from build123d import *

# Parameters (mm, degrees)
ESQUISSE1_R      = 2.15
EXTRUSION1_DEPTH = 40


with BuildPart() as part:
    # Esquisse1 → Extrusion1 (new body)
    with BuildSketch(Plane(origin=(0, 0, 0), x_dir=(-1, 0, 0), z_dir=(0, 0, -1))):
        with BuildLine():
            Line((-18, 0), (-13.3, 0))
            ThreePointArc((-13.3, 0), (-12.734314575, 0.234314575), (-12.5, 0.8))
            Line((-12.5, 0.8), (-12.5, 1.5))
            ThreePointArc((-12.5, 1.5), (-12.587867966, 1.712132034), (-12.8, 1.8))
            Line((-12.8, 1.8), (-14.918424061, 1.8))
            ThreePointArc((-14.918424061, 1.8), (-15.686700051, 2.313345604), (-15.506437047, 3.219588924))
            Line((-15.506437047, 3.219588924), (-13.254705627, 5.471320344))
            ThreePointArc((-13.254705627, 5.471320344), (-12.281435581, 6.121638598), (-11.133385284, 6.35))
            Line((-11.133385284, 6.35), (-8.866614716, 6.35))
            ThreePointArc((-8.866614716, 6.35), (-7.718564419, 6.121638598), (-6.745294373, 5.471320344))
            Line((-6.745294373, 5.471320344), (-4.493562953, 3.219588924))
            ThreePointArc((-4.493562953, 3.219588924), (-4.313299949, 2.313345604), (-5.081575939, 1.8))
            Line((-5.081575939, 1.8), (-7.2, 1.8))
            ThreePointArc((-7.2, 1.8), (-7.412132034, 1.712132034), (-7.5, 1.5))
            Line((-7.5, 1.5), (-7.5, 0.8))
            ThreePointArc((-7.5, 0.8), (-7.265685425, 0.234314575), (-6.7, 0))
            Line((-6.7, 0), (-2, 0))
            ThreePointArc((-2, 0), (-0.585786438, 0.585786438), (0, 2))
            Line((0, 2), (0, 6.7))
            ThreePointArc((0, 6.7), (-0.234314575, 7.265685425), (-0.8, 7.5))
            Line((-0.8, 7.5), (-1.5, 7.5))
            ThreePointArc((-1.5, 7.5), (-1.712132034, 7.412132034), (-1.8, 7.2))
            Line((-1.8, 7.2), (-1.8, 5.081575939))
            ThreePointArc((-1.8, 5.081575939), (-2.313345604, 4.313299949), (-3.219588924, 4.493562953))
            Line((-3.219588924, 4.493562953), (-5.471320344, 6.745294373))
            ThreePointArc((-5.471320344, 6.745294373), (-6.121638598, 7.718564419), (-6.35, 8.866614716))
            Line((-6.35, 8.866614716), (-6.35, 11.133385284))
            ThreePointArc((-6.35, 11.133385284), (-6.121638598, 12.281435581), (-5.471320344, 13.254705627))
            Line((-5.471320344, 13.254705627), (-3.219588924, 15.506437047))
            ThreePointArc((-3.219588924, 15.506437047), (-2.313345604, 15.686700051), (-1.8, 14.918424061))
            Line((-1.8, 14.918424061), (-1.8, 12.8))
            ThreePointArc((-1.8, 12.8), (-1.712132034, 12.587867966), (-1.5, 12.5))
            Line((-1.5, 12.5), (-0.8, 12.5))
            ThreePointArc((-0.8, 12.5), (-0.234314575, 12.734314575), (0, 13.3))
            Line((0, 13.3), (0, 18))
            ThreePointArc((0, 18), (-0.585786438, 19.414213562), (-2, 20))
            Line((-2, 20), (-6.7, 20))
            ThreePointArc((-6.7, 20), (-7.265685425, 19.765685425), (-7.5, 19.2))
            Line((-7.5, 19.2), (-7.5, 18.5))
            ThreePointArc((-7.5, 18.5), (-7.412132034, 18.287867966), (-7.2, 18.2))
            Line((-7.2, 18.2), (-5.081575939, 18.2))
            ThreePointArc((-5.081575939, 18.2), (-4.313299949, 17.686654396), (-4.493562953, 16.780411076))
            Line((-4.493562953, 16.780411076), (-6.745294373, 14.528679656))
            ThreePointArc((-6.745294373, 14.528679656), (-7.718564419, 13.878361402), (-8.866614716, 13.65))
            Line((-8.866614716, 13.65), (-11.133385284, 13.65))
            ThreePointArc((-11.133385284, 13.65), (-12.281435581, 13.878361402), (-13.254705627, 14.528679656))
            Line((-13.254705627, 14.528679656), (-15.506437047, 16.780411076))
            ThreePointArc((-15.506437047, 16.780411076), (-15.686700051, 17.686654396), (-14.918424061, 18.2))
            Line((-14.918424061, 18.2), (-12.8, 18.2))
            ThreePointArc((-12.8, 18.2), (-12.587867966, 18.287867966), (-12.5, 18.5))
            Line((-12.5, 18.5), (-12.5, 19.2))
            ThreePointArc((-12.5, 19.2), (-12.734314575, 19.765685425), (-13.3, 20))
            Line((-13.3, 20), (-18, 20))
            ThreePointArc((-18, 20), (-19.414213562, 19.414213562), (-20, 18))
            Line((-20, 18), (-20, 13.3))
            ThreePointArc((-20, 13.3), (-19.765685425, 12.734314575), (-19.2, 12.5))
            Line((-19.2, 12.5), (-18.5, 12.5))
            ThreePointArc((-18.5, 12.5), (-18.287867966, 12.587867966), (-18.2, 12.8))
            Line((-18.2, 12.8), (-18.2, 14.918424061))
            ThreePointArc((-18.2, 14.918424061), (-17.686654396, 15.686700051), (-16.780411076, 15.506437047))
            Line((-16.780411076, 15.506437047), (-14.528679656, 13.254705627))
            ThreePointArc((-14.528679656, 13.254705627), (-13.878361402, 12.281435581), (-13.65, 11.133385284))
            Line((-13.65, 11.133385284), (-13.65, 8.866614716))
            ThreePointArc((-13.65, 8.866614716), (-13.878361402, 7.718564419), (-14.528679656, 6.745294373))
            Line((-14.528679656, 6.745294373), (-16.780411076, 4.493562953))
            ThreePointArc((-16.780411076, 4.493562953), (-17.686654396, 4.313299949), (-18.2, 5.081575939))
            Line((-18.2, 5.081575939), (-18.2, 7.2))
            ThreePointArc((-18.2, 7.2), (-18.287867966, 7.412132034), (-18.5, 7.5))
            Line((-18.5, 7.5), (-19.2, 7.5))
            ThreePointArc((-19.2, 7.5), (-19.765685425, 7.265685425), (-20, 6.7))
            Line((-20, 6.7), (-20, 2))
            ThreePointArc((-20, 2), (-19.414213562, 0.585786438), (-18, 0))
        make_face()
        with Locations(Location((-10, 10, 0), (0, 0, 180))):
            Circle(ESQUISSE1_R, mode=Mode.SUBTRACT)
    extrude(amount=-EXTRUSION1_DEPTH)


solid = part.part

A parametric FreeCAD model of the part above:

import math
import FreeCAD as App
import Part
import Sketcher
from FreeCAD import Vector
Q = App.Units.Quantity

doc = App.newDocument("Part")
body = doc.addObject("PartDesign::Body", "Body")

# Sketch on XY plane
sketch1 = body.newObject("Sketcher::SketchObject", "Sketch")
sketch1.AttachmentSupport = (doc.getObject("XY_Plane"), [""])
sketch1.MapMode = "FlatFace"
sketch1.addGeometry(Part.LineSegment(Vector(18, 0, 0), Vector(13.3, 0, 0)), False)
sketch1.addGeometry(Part.ArcOfCircle(Part.Circle(Vector(13.3, 0.8, 0), Vector(0, 0, 1), 0.8), math.radians(180), math.radians(270)), False)
sketch1.addGeometry(Part.LineSegment(Vector(12.5, 0.8, 0), Vector(12.5, 1.5, 0)), False)
sketch1.addGeometry(Part.ArcOfCircle(Part.Circle(Vector(12.8, 1.5, 0), Vector(0, 0, 1), 0.3), math.radians(90), math.radians(180)), False)
sketch1.addGeometry(Part.LineSegment(Vector(12.8, 1.8, 0), Vector(14.918424, 1.8, 0)), False)
sketch1.addGeometry(Part.ArcOfCircle(Part.Circle(Vector(14.918424, 2.631576, 0), Vector(0, 0, 1), 0.831576), math.radians(-90), math.radians(45)), False)
sketch1.addGeometry(Part.LineSegment(Vector(15.506437, 3.219589, 0), Vector(13.254706, 5.47132, 0)), False)
sketch1.addGeometry(Part.ArcOfCircle(Part.Circle(Vector(11.133385, 3.35, 0), Vector(0, 0, 1), 3), math.radians(45), math.radians(90)), False)
sketch1.addGeometry(Part.LineSegment(Vector(11.133385, 6.35, 0), Vector(8.866615, 6.35, 0)), False)
sketch1.addGeometry(Part.ArcOfCircle(Part.Circle(Vector(8.866615, 3.35, 0), Vector(0, 0, 1), 3), math.radians(90), math.radians(135)), False)
sketch1.addGeometry(Part.LineSegment(Vector(6.745294, 5.47132, 0), Vector(4.493563, 3.219589, 0)), False)
sketch1.addGeometry(Part.ArcOfCircle(Part.Circle(Vector(5.081576, 2.631576, 0), Vector(0, 0, 1), 0.831576), math.radians(135), math.radians(270)), False)
sketch1.addGeometry(Part.LineSegment(Vector(5.081576, 1.8, 0), Vector(7.2, 1.8, 0)), False)
sketch1.addGeometry(Part.ArcOfCircle(Part.Circle(Vector(7.2, 1.5, 0), Vector(0, 0, 1), 0.3), math.radians(0), math.radians(90)), False)
sketch1.addGeometry(Part.LineSegment(Vector(7.5, 1.5, 0), Vector(7.5, 0.8, 0)), False)
sketch1.addGeometry(Part.ArcOfCircle(Part.Circle(Vector(6.7, 0.8, 0), Vector(0, 0, 1), 0.8), math.radians(-90), math.radians(0)), False)
sketch1.addGeometry(Part.LineSegment(Vector(6.7, 0, 0), Vector(2, 0, 0)), False)
sketch1.addGeometry(Part.ArcOfCircle(Part.Circle(Vector(2, 2, 0), Vector(0, 0, 1), 2), math.radians(-180), math.radians(-90)), False)
sketch1.addGeometry(Part.LineSegment(Vector(0, 2, 0), Vector(0, 6.7, 0)), False)
sketch1.addGeometry(Part.ArcOfCircle(Part.Circle(Vector(0.8, 6.7, 0), Vector(0, 0, 1), 0.8), math.radians(90), math.radians(180)), False)
sketch1.addGeometry(Part.LineSegment(Vector(0.8, 7.5, 0), Vector(1.5, 7.5, 0)), False)
sketch1.addGeometry(Part.ArcOfCircle(Part.Circle(Vector(1.5, 7.2, 0), Vector(0, 0, 1), 0.3), math.radians(0), math.radians(90)), False)
sketch1.addGeometry(Part.LineSegment(Vector(1.8, 7.2, 0), Vector(1.8, 5.081576, 0)), False)
sketch1.addGeometry(Part.ArcOfCircle(Part.Circle(Vector(2.631576, 5.081576, 0), Vector(0, 0, 1), 0.831576), math.radians(180), math.radians(315)), False)
sketch1.addGeometry(Part.LineSegment(Vector(3.219589, 4.493563, 0), Vector(5.47132, 6.745294, 0)), False)
sketch1.addGeometry(Part.ArcOfCircle(Part.Circle(Vector(3.35, 8.866615, 0), Vector(0, 0, 1), 3), math.radians(-45), math.radians(0)), False)
sketch1.addGeometry(Part.LineSegment(Vector(6.35, 8.866615, 0), Vector(6.35, 11.133385, 0)), False)
sketch1.addGeometry(Part.ArcOfCircle(Part.Circle(Vector(3.35, 11.133385, 0), Vector(0, 0, 1), 3), math.radians(0), math.radians(45)), False)
sketch1.addGeometry(Part.LineSegment(Vector(5.47132, 13.254706, 0), Vector(3.219589, 15.506437, 0)), False)
sketch1.addGeometry(Part.ArcOfCircle(Part.Circle(Vector(2.631576, 14.918424, 0), Vector(0, 0, 1), 0.831576), math.radians(45), math.radians(180)), False)
sketch1.addGeometry(Part.LineSegment(Vector(1.8, 14.918424, 0), Vector(1.8, 12.8, 0)), False)
sketch1.addGeometry(Part.ArcOfCircle(Part.Circle(Vector(1.5, 12.8, 0), Vector(0, 0, 1), 0.3), math.radians(-90), math.radians(0)), False)
sketch1.addGeometry(Part.LineSegment(Vector(1.5, 12.5, 0), Vector(0.8, 12.5, 0)), False)
sketch1.addGeometry(Part.ArcOfCircle(Part.Circle(Vector(0.8, 13.3, 0), Vector(0, 0, 1), 0.8), math.radians(180), math.radians(270)), False)
sketch1.addGeometry(Part.LineSegment(Vector(0, 13.3, 0), Vector(0, 18, 0)), False)
sketch1.addGeometry(Part.ArcOfCircle(Part.Circle(Vector(2, 18, 0), Vector(0, 0, 1), 2), math.radians(90), math.radians(180)), False)
sketch1.addGeometry(Part.LineSegment(Vector(2, 20, 0), Vector(6.7, 20, 0)), False)
sketch1.addGeometry(Part.ArcOfCircle(Part.Circle(Vector(6.7, 19.2, 0), Vector(0, 0, 1), 0.8), math.radians(0), math.radians(90)), False)
sketch1.addGeometry(Part.LineSegment(Vector(7.5, 19.2, 0), Vector(7.5, 18.5, 0)), False)
sketch1.addGeometry(Part.ArcOfCircle(Part.Circle(Vector(7.2, 18.5, 0), Vector(0, 0, 1), 0.3), math.radians(-90), math.radians(0)), False)
sketch1.addGeometry(Part.LineSegment(Vector(7.2, 18.2, 0), Vector(5.081576, 18.2, 0)), False)
sketch1.addGeometry(Part.ArcOfCircle(Part.Circle(Vector(5.081576, 17.368424, 0), Vector(0, 0, 1), 0.831576), math.radians(90), math.radians(225)), False)
sketch1.addGeometry(Part.LineSegment(Vector(4.493563, 16.780411, 0), Vector(6.745294, 14.52868, 0)), False)
sketch1.addGeometry(Part.ArcOfCircle(Part.Circle(Vector(8.866615, 16.65, 0), Vector(0, 0, 1), 3), math.radians(-135), math.radians(-90)), False)
sketch1.addGeometry(Part.LineSegment(Vector(8.866615, 13.65, 0), Vector(11.133385, 13.65, 0)), False)
sketch1.addGeometry(Part.ArcOfCircle(Part.Circle(Vector(11.133385, 16.65, 0), Vector(0, 0, 1), 3), math.radians(-90), math.radians(-45)), False)
sketch1.addGeometry(Part.LineSegment(Vector(13.254706, 14.52868, 0), Vector(15.506437, 16.780411, 0)), False)
sketch1.addGeometry(Part.ArcOfCircle(Part.Circle(Vector(14.918424, 17.368424, 0), Vector(0, 0, 1), 0.831576), math.radians(-45), math.radians(90)), False)
sketch1.addGeometry(Part.LineSegment(Vector(14.918424, 18.2, 0), Vector(12.8, 18.2, 0)), False)
sketch1.addGeometry(Part.ArcOfCircle(Part.Circle(Vector(12.8, 18.5, 0), Vector(0, 0, 1), 0.3), math.radians(-180), math.radians(-90)), False)
sketch1.addGeometry(Part.LineSegment(Vector(12.5, 18.5, 0), Vector(12.5, 19.2, 0)), False)
sketch1.addGeometry(Part.ArcOfCircle(Part.Circle(Vector(13.3, 19.2, 0), Vector(0, 0, 1), 0.8), math.radians(90), math.radians(180)), False)
sketch1.addGeometry(Part.LineSegment(Vector(13.3, 20, 0), Vector(18, 20, 0)), False)
sketch1.addGeometry(Part.ArcOfCircle(Part.Circle(Vector(18, 18, 0), Vector(0, 0, 1), 2), math.radians(0), math.radians(90)), False)
sketch1.addGeometry(Part.LineSegment(Vector(20, 18, 0), Vector(20, 13.3, 0)), False)
sketch1.addGeometry(Part.ArcOfCircle(Part.Circle(Vector(19.2, 13.3, 0), Vector(0, 0, 1), 0.8), math.radians(-90), math.radians(0)), False)
sketch1.addGeometry(Part.LineSegment(Vector(19.2, 12.5, 0), Vector(18.5, 12.5, 0)), False)
sketch1.addGeometry(Part.ArcOfCircle(Part.Circle(Vector(18.5, 12.8, 0), Vector(0, 0, 1), 0.3), math.radians(-180), math.radians(-90)), False)
sketch1.addGeometry(Part.LineSegment(Vector(18.2, 12.8, 0), Vector(18.2, 14.918424, 0)), False)
sketch1.addGeometry(Part.ArcOfCircle(Part.Circle(Vector(17.368424, 14.918424, 0), Vector(0, 0, 1), 0.831576), math.radians(0), math.radians(135)), False)
sketch1.addGeometry(Part.LineSegment(Vector(16.780411, 15.506437, 0), Vector(14.52868, 13.254706, 0)), False)
sketch1.addGeometry(Part.ArcOfCircle(Part.Circle(Vector(16.65, 11.133385, 0), Vector(0, 0, 1), 3), math.radians(135), math.radians(180)), False)
sketch1.addGeometry(Part.LineSegment(Vector(13.65, 11.133385, 0), Vector(13.65, 8.866615, 0)), False)
sketch1.addGeometry(Part.ArcOfCircle(Part.Circle(Vector(16.65, 8.866615, 0), Vector(0, 0, 1), 3), math.radians(180), math.radians(225)), False)
sketch1.addGeometry(Part.LineSegment(Vector(14.52868, 6.745294, 0), Vector(16.780411, 4.493563, 0)), False)
sketch1.addGeometry(Part.ArcOfCircle(Part.Circle(Vector(17.368424, 5.081576, 0), Vector(0, 0, 1), 0.831576), math.radians(-135), math.radians(0)), False)
sketch1.addGeometry(Part.LineSegment(Vector(18.2, 5.081576, 0), Vector(18.2, 7.2, 0)), False)
sketch1.addGeometry(Part.ArcOfCircle(Part.Circle(Vector(18.5, 7.2, 0), Vector(0, 0, 1), 0.3), math.radians(90), math.radians(180)), False)
sketch1.addGeometry(Part.LineSegment(Vector(18.5, 7.5, 0), Vector(19.2, 7.5, 0)), False)
sketch1.addGeometry(Part.ArcOfCircle(Part.Circle(Vector(19.2, 6.7, 0), Vector(0, 0, 1), 0.8), math.radians(0), math.radians(90)), False)
sketch1.addGeometry(Part.LineSegment(Vector(20, 6.7, 0), Vector(20, 2, 0)), False)
sketch1.addGeometry(Part.ArcOfCircle(Part.Circle(Vector(18, 2, 0), Vector(0, 0, 1), 2), math.radians(-90), math.radians(0)), False)
sketch1.addGeometry(Part.Circle(Vector(10, 10, 0), Vector(0, 0, 1), 2.15), False)
sketch1.addConstraint(Sketcher.Constraint("Tangent", 0, 2, 1, 2))
sketch1.addConstraint(Sketcher.Constraint("Tangent", 1, 1, 2, 1))
sketch1.addConstraint(Sketcher.Constraint("Tangent", 2, 2, 3, 2))
sketch1.addConstraint(Sketcher.Constraint("Tangent", 3, 1, 4, 1))
sketch1.addConstraint(Sketcher.Constraint("Tangent", 4, 2, 5, 1))
sketch1.addConstraint(Sketcher.Constraint("Tangent", 5, 2, 6, 1))
sketch1.addConstraint(Sketcher.Constraint("Tangent", 6, 2, 7, 1))
sketch1.addConstraint(Sketcher.Constraint("Tangent", 7, 2, 8, 1))
sketch1.addConstraint(Sketcher.Constraint("Tangent", 8, 2, 9, 1))
sketch1.addConstraint(Sketcher.Constraint("Tangent", 9, 2, 10, 1))
sketch1.addConstraint(Sketcher.Constraint("Tangent", 10, 2, 11, 1))
sketch1.addConstraint(Sketcher.Constraint("Tangent", 11, 2, 12, 1))
sketch1.addConstraint(Sketcher.Constraint("Tangent", 12, 2, 13, 2))
sketch1.addConstraint(Sketcher.Constraint("Tangent", 13, 1, 14, 1))
sketch1.addConstraint(Sketcher.Constraint("Tangent", 14, 2, 15, 2))
sketch1.addConstraint(Sketcher.Constraint("Tangent", 15, 1, 16, 1))
sketch1.addConstraint(Sketcher.Constraint("Tangent", 16, 2, 17, 2))
sketch1.addConstraint(Sketcher.Constraint("Tangent", 17, 1, 18, 1))
sketch1.addConstraint(Sketcher.Constraint("Tangent", 18, 2, 19, 2))
sketch1.addConstraint(Sketcher.Constraint("Tangent", 19, 1, 20, 1))
sketch1.addConstraint(Sketcher.Constraint("Tangent", 20, 2, 21, 2))
sketch1.addConstraint(Sketcher.Constraint("Tangent", 21, 1, 22, 1))
sketch1.addConstraint(Sketcher.Constraint("Tangent", 22, 2, 23, 1))
sketch1.addConstraint(Sketcher.Constraint("Tangent", 23, 2, 24, 1))
sketch1.addConstraint(Sketcher.Constraint("Tangent", 24, 2, 25, 1))
sketch1.addConstraint(Sketcher.Constraint("Tangent", 25, 2, 26, 1))
sketch1.addConstraint(Sketcher.Constraint("Tangent", 26, 2, 27, 1))
sketch1.addConstraint(Sketcher.Constraint("Tangent", 27, 2, 28, 1))
sketch1.addConstraint(Sketcher.Constraint("Tangent", 28, 2, 29, 1))
sketch1.addConstraint(Sketcher.Constraint("Tangent", 29, 2, 30, 1))
sketch1.addConstraint(Sketcher.Constraint("Tangent", 30, 2, 31, 2))
sketch1.addConstraint(Sketcher.Constraint("Tangent", 31, 1, 32, 1))
sketch1.addConstraint(Sketcher.Constraint("Tangent", 32, 2, 33, 2))
sketch1.addConstraint(Sketcher.Constraint("Tangent", 33, 1, 34, 1))
sketch1.addConstraint(Sketcher.Constraint("Tangent", 34, 2, 35, 2))
sketch1.addConstraint(Sketcher.Constraint("Tangent", 35, 1, 36, 1))
sketch1.addConstraint(Sketcher.Constraint("Tangent", 36, 2, 37, 2))
sketch1.addConstraint(Sketcher.Constraint("Tangent", 37, 1, 38, 1))
sketch1.addConstraint(Sketcher.Constraint("Tangent", 38, 2, 39, 2))
sketch1.addConstraint(Sketcher.Constraint("Tangent", 39, 1, 40, 1))
sketch1.addConstraint(Sketcher.Constraint("Tangent", 40, 2, 41, 1))
sketch1.addConstraint(Sketcher.Constraint("Tangent", 41, 2, 42, 1))
sketch1.addConstraint(Sketcher.Constraint("Tangent", 42, 2, 43, 1))
sketch1.addConstraint(Sketcher.Constraint("Tangent", 43, 2, 44, 1))
sketch1.addConstraint(Sketcher.Constraint("Tangent", 44, 2, 45, 1))
sketch1.addConstraint(Sketcher.Constraint("Tangent", 45, 2, 46, 1))
sketch1.addConstraint(Sketcher.Constraint("Tangent", 46, 2, 47, 1))
sketch1.addConstraint(Sketcher.Constraint("Tangent", 47, 2, 48, 1))
sketch1.addConstraint(Sketcher.Constraint("Tangent", 48, 2, 49, 2))
sketch1.addConstraint(Sketcher.Constraint("Tangent", 49, 1, 50, 1))
sketch1.addConstraint(Sketcher.Constraint("Tangent", 50, 2, 51, 2))
sketch1.addConstraint(Sketcher.Constraint("Tangent", 51, 1, 52, 1))
sketch1.addConstraint(Sketcher.Constraint("Tangent", 52, 2, 53, 2))
sketch1.addConstraint(Sketcher.Constraint("Tangent", 53, 1, 54, 1))
sketch1.addConstraint(Sketcher.Constraint("Tangent", 54, 2, 55, 2))
sketch1.addConstraint(Sketcher.Constraint("Tangent", 55, 1, 56, 1))
sketch1.addConstraint(Sketcher.Constraint("Tangent", 56, 2, 57, 2))
sketch1.addConstraint(Sketcher.Constraint("Tangent", 57, 1, 58, 1))
sketch1.addConstraint(Sketcher.Constraint("Tangent", 58, 2, 59, 1))
sketch1.addConstraint(Sketcher.Constraint("Tangent", 59, 2, 60, 1))
sketch1.addConstraint(Sketcher.Constraint("Tangent", 60, 2, 61, 1))
sketch1.addConstraint(Sketcher.Constraint("Tangent", 61, 2, 62, 1))
sketch1.addConstraint(Sketcher.Constraint("Tangent", 62, 2, 63, 1))
sketch1.addConstraint(Sketcher.Constraint("Tangent", 63, 2, 64, 1))
sketch1.addConstraint(Sketcher.Constraint("Tangent", 64, 2, 65, 1))
sketch1.addConstraint(Sketcher.Constraint("Tangent", 65, 2, 66, 1))
sketch1.addConstraint(Sketcher.Constraint("Tangent", 66, 2, 67, 2))
sketch1.addConstraint(Sketcher.Constraint("Tangent", 67, 1, 68, 1))
sketch1.addConstraint(Sketcher.Constraint("Tangent", 68, 2, 69, 2))
sketch1.addConstraint(Sketcher.Constraint("Tangent", 69, 1, 70, 1))
sketch1.addConstraint(Sketcher.Constraint("Tangent", 70, 2, 71, 2))
sketch1.addConstraint(Sketcher.Constraint("Tangent", 71, 1, 0, 1))
sketch1.addConstraint(Sketcher.Constraint("Horizontal", 0))
sketch1.addConstraint(Sketcher.Constraint("Vertical", 2))
sketch1.addConstraint(Sketcher.Constraint("Horizontal", 4))
sketch1.addConstraint(Sketcher.Constraint("Horizontal", 8))
sketch1.addConstraint(Sketcher.Constraint("Horizontal", 12))
sketch1.addConstraint(Sketcher.Constraint("Vertical", 14))
sketch1.addConstraint(Sketcher.Constraint("Horizontal", 16))
sketch1.addConstraint(Sketcher.Constraint("Vertical", 18))
sketch1.addConstraint(Sketcher.Constraint("Horizontal", 20))
sketch1.addConstraint(Sketcher.Constraint("Vertical", 22))
sketch1.addConstraint(Sketcher.Constraint("Vertical", 26))
sketch1.addConstraint(Sketcher.Constraint("Vertical", 30))
sketch1.addConstraint(Sketcher.Constraint("Horizontal", 32))
sketch1.addConstraint(Sketcher.Constraint("Vertical", 34))
sketch1.addConstraint(Sketcher.Constraint("Horizontal", 36))
sketch1.addConstraint(Sketcher.Constraint("Vertical", 38))
sketch1.addConstraint(Sketcher.Constraint("Horizontal", 40))
sketch1.addConstraint(Sketcher.Constraint("Horizontal", 44))
sketch1.addConstraint(Sketcher.Constraint("Horizontal", 48))
sketch1.addConstraint(Sketcher.Constraint("Vertical", 50))
sketch1.addConstraint(Sketcher.Constraint("Horizontal", 52))
sketch1.addConstraint(Sketcher.Constraint("Vertical", 54))
sketch1.addConstraint(Sketcher.Constraint("Horizontal", 56))
sketch1.addConstraint(Sketcher.Constraint("Vertical", 58))
sketch1.addConstraint(Sketcher.Constraint("Vertical", 62))
sketch1.addConstraint(Sketcher.Constraint("Vertical", 66))
sketch1.addConstraint(Sketcher.Constraint("Horizontal", 68))
sketch1.addConstraint(Sketcher.Constraint("Vertical", 70))
sketch1.addConstraint(Sketcher.Constraint("Equal", 7, 9))
sketch1.addConstraint(Sketcher.Constraint("Equal", 5, 11))
sketch1.addConstraint(Sketcher.Constraint("Equal", 3, 13))
sketch1.addConstraint(Sketcher.Constraint("Equal", 1, 15))
sketch1.addConstraint(Sketcher.Constraint("Equal", 15, 19))
sketch1.addConstraint(Sketcher.Constraint("Equal", 13, 21))
sketch1.addConstraint(Sketcher.Constraint("Equal", 11, 23))
sketch1.addConstraint(Sketcher.Constraint("Equal", 9, 25))
sketch1.addConstraint(Sketcher.Constraint("Equal", 25, 27))
sketch1.addConstraint(Sketcher.Constraint("Equal", 23, 29))
sketch1.addConstraint(Sketcher.Constraint("Equal", 21, 31))
sketch1.addConstraint(Sketcher.Constraint("Equal", 19, 33))
sketch1.addConstraint(Sketcher.Constraint("Equal", 17, 35))
sketch1.addConstraint(Sketcher.Constraint("Equal", 33, 37))
sketch1.addConstraint(Sketcher.Constraint("Equal", 31, 39))
sketch1.addConstraint(Sketcher.Constraint("Equal", 29, 41))
sketch1.addConstraint(Sketcher.Constraint("Equal", 27, 43))
sketch1.addConstraint(Sketcher.Constraint("Equal", 43, 45))
sketch1.addConstraint(Sketcher.Constraint("Equal", 41, 47))
sketch1.addConstraint(Sketcher.Constraint("Equal", 39, 49))
sketch1.addConstraint(Sketcher.Constraint("Equal", 37, 51))
sketch1.addConstraint(Sketcher.Constraint("Equal", 35, 53))
sketch1.addConstraint(Sketcher.Constraint("Equal", 51, 55))
sketch1.addConstraint(Sketcher.Constraint("Equal", 49, 57))
sketch1.addConstraint(Sketcher.Constraint("Equal", 47, 59))
sketch1.addConstraint(Sketcher.Constraint("Equal", 45, 61))
sketch1.addConstraint(Sketcher.Constraint("Equal", 61, 63))
sketch1.addConstraint(Sketcher.Constraint("Equal", 59, 65))
sketch1.addConstraint(Sketcher.Constraint("Equal", 57, 67))
sketch1.addConstraint(Sketcher.Constraint("Equal", 55, 69))
sketch1.addConstraint(Sketcher.Constraint("Equal", 53, 71))
sketch1.addConstraint(Sketcher.Constraint("PointOnObject", 0, 2, -1))
sketch1.addConstraint(Sketcher.Constraint("PointOnObject", 15, 1, -1))
sketch1.addConstraint(Sketcher.Constraint("PointOnObject", 17, 1, -2))
sketch1.addConstraint(Sketcher.Constraint("PointOnObject", 33, 1, -2))
sketch1.addConstraint(Sketcher.Constraint("Perpendicular", 6, 10))
sketch1.addConstraint(Sketcher.Constraint("Parallel", 10, 24))
sketch1.addConstraint(Sketcher.Constraint("Perpendicular", 24, 28))
sketch1.addConstraint(Sketcher.Constraint("Parallel", 28, 42))
sketch1.addConstraint(Sketcher.Constraint("Perpendicular", 42, 46))
sketch1.addConstraint(Sketcher.Constraint("Parallel", 46, 60))
sketch1.addConstraint(Sketcher.Constraint("Perpendicular", 60, 64))
sketch1.addConstraint(Sketcher.Constraint("Horizontal", 5, 3, 11, 3))
sketch1.addConstraint(Sketcher.Constraint("Horizontal", 41, 3, 47, 3))
sketch1.addConstraint(Sketcher.Constraint("Horizontal", 37, 3, 51, 3))
sketch1.addConstraint(Sketcher.Constraint("Horizontal", 33, 3, 55, 3))
sketch1.addConstraint(Sketcher.Constraint("Horizontal", 29, 3, 59, 3))
sketch1.addConstraint(Sketcher.Constraint("Horizontal", 27, 3, 61, 3))
sketch1.addConstraint(Sketcher.Constraint("Horizontal", 25, 3, 63, 3))
sketch1.addConstraint(Sketcher.Constraint("Horizontal", 23, 3, 65, 3))
sketch1.addConstraint(Sketcher.Constraint("Horizontal", 21, 3, 67, 3))
sketch1.addConstraint(Sketcher.Constraint("Horizontal", 6, 2, 9, 2))
sketch1.addConstraint(Sketcher.Constraint("Vertical", 23, 3, 29, 3))
sketch1.addConstraint(Sketcher.Constraint("Vertical", 15, 3, 37, 3))
sketch1.addConstraint(Sketcher.Constraint("Vertical", 11, 3, 41, 3))
sketch1.addConstraint(Sketcher.Constraint("Vertical", 9, 3, 43, 3))
sketch1.addConstraint(Sketcher.Constraint("Vertical", 7, 3, 45, 3))
sketch1.addConstraint(Sketcher.Constraint("Vertical", 3, 3, 49, 3))
sketch1.addConstraint(Sketcher.Constraint("Vertical", 55, 3, 69, 3))
sketch1.addConstraint(Sketcher.Constraint("Equal", 4, 12))
sketch1.addConstraint(Sketcher.Constraint("Equal", 0, 16))
sketch1.addConstraint(Sketcher.Constraint("Equal", 32, 56))
sketch1.addConstraint(Sketcher.Constraint("Equal", 68, 2))
sketch1.addConstraint(Sketcher.Constraint("Equal", 52, 18))
sketch1.addConstraint(Sketcher.Constraint("Equal", 48, 22))
sketch1.addConstraint(Sketcher.Constraint("Equal", 44, 26))
sketch1.addConstraint(Sketcher.Constraint("Equal", 22, 30))
sketch1.addConstraint(Sketcher.Constraint("Equal", 18, 34))
sketch1.addConstraint(Sketcher.Constraint("Equal", 14, 38))
sketch1.addConstraint(Sketcher.Constraint("Equal", 10, 24))
sketch1.addConstraint(Sketcher.Constraint("Radius", 7, Q("3 mm")))
sketch1.addConstraint(Sketcher.Constraint("Radius", 17, Q("2 mm")))
sketch1.addConstraint(Sketcher.Constraint("Diameter", 72, Q("4.3 mm")))
sketch1.addConstraint(Sketcher.Constraint("Radius", 1, Q("0.8 mm")))
sketch1.addConstraint(Sketcher.Constraint("Radius", 3, Q("0.3 mm")))
sketch1.addConstraint(Sketcher.Constraint("DistanceX", 0, 2, 0, 1, Q("4.7 mm")))
sketch1.addConstraint(Sketcher.Constraint("DistanceX", 20, 1, 20, 2, Q("0.7 mm")))
sketch1.addConstraint(Sketcher.Constraint("DistanceY", -1, 1, 35, 3, Q("18 mm")))
sketch1.addConstraint(Sketcher.Constraint("DistanceX", -1, 1, 72, 3, Q("10 mm")))
sketch1.addConstraint(Sketcher.Constraint("DistanceY", -1, 1, 72, 3, Q("10 mm")))
sketch1.addConstraint(Sketcher.Constraint("DistanceY", -1, 1, 7, 3, Q("3.35 mm")))
sketch1.addConstraint(Sketcher.Constraint("Radius", 5, Q("0.831576 mm")))
sketch1.addConstraint(Sketcher.Constraint("DistanceX", 8, 2, 8, 1, Q("2.266771 mm")))
pad1 = body.newObject("PartDesign::Pad", "Pad")
pad1.Profile = sketch1
pad1.Length = 40

doc.recompute()
